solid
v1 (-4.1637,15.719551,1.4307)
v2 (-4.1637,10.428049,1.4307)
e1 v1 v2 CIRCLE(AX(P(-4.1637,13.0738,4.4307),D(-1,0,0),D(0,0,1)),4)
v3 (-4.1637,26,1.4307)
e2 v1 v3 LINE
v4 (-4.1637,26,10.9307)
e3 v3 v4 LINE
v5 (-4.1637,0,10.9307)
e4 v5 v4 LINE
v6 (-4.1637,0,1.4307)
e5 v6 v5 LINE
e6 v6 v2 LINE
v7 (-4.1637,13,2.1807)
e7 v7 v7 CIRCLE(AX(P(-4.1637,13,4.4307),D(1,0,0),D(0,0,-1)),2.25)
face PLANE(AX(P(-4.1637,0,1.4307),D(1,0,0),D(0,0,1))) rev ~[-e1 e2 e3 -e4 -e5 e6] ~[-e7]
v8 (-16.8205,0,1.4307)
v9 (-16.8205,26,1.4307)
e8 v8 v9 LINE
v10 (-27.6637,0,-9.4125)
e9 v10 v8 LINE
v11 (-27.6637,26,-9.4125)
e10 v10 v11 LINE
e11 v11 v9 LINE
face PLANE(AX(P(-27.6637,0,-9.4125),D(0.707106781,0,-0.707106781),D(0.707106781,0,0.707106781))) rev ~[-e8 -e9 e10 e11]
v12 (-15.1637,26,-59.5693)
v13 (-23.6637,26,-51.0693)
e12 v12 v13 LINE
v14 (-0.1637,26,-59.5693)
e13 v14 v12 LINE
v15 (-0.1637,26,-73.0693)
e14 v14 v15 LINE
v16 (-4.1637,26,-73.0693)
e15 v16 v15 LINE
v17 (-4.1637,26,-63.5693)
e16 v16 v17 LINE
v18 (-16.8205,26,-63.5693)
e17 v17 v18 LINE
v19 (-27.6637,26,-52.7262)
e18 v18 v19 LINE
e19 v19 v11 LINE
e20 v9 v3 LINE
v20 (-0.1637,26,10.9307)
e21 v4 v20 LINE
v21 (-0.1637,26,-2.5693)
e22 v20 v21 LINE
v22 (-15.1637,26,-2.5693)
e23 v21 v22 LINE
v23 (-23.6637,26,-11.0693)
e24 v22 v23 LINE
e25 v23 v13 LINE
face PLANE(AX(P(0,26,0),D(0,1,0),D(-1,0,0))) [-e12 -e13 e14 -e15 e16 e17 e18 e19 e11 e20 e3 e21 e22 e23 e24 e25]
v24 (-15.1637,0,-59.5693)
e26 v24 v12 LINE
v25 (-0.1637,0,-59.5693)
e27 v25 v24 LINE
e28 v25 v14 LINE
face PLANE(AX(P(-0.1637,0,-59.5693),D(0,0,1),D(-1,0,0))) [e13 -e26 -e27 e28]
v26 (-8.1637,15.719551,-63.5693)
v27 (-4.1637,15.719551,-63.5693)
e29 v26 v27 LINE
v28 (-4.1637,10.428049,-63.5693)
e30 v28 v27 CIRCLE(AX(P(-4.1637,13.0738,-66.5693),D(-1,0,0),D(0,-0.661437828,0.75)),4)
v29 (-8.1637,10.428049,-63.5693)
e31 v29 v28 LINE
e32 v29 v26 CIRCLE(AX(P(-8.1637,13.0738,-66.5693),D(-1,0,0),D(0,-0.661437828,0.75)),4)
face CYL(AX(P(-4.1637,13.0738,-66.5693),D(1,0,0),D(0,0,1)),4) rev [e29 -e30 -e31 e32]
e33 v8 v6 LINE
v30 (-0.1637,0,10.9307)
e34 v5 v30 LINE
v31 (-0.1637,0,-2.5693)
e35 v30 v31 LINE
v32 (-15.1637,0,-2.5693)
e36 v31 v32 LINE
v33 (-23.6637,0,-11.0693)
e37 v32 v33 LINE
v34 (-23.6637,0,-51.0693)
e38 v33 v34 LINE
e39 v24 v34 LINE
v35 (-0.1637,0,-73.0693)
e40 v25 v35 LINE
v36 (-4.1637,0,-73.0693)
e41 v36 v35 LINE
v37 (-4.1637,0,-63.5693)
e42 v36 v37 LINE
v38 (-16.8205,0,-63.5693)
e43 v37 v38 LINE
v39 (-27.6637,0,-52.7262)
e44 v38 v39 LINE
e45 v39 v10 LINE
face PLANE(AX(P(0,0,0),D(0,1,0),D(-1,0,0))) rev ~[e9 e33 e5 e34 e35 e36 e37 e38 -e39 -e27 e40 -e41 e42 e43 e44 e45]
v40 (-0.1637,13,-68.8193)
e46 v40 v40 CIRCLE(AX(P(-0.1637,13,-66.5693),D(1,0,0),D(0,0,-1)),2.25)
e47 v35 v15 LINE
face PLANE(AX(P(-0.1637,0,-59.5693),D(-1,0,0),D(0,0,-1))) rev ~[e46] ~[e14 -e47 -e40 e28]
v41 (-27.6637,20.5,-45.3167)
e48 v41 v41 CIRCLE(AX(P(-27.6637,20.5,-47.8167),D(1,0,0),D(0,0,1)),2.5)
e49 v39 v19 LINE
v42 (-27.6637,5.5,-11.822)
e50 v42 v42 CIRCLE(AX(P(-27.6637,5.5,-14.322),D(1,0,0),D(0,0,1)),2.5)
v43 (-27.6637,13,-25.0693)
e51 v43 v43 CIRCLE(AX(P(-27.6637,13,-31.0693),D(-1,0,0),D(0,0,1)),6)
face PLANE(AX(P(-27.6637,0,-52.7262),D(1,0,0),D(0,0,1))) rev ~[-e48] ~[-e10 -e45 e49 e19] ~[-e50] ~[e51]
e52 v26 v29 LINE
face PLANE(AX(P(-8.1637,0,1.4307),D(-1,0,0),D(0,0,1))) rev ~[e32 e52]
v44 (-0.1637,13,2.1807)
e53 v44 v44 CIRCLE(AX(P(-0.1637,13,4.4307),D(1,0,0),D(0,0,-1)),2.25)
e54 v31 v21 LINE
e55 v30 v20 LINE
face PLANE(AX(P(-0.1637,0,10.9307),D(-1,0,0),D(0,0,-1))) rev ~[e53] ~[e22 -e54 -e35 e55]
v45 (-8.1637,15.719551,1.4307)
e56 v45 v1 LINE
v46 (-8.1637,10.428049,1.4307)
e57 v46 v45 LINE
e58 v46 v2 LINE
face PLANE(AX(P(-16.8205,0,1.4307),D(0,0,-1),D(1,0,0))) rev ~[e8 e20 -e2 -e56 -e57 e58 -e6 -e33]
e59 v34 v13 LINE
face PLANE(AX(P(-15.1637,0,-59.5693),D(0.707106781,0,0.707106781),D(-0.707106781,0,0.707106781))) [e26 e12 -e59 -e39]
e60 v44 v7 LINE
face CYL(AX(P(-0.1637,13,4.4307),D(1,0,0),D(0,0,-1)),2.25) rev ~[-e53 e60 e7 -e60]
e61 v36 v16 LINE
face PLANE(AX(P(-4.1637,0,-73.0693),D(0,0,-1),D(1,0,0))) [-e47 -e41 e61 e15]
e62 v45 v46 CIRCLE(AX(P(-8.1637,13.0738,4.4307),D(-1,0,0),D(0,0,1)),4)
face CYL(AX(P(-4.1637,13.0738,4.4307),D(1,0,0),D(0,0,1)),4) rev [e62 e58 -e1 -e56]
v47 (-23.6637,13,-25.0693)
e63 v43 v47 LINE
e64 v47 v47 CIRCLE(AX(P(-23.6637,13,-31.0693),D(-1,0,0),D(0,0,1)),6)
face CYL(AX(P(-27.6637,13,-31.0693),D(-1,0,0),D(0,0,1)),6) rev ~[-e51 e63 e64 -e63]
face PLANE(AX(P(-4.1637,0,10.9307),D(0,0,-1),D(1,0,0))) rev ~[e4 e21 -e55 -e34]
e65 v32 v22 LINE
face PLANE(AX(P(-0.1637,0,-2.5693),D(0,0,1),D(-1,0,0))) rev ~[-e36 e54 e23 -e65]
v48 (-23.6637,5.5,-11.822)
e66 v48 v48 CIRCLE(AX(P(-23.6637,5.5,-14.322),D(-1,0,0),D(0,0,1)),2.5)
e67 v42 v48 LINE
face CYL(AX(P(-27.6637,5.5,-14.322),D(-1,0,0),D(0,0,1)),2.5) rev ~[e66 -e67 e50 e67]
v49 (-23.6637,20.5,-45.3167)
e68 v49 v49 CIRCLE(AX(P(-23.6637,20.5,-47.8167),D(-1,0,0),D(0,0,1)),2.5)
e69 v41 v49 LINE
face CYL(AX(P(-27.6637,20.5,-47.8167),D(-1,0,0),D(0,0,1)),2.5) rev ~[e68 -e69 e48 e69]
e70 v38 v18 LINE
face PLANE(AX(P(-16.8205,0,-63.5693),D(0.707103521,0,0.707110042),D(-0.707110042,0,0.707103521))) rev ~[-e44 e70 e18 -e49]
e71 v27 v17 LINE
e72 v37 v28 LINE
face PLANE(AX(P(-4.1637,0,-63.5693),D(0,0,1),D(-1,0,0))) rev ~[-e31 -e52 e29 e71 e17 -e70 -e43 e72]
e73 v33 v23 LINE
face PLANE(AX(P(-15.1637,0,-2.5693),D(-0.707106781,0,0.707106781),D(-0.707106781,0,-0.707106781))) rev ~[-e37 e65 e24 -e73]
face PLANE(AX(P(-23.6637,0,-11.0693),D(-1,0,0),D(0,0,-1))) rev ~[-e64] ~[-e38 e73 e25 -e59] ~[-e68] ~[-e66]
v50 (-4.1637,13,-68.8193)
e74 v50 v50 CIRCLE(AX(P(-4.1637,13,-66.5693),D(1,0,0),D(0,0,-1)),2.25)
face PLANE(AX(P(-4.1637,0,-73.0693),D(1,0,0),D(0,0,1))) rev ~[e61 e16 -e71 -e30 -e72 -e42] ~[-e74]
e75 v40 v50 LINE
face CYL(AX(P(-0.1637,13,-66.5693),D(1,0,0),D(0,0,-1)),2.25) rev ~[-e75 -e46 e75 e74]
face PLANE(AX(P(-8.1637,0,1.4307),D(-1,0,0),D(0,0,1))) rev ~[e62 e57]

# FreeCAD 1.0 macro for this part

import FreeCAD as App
import Part
import Sketcher

V = App.Vector


def add_polygon(sketch, points):
    """Adds a closed chain of lines whose ends are joined by coincident constraints."""
    first, n = sketch.GeometryCount, len(points)
    for a, b in zip(points, points[1:] + points[:1]):
        sketch.addGeometry(Part.LineSegment(App.Vector(*a, 0), App.Vector(*b, 0)), False)
    for i in range(n):
        sketch.addConstraint(Sketcher.Constraint("Coincident", first + i, 2, first + (i + 1) % n, 1))

doc = App.newDocument("Part")
params = doc.addObject("Spreadsheet::Sheet", "Params")
for row, (alias, value) in enumerate([
    ("sketch1_width", "4 mm"),
    ("sketch1_width2", "15 mm"),
    ("sketch1_height", "13.5 mm"),
    ("sketch1_height2", "40 mm"),
    ("pad1_length", "26 mm"),
    ("sketch2_diameter", "4.5 mm"),
    ("pocket1_length", "10 mm"),
    ("sketch3_diameter", "12 mm"),
    ("pocket2_length", "10 mm"),
    ("sketch4_diameter", "5 mm"),
    ("pocket3_length", "10 mm"),
    ("sketch5_diameter", "8 mm"),
    ("pocket4_length", "4 mm"),
], start=1):
    params.set(f"A{row}", alias)
    params.set(f"B{row}", "=" + value)
    params.setAlias(f"B{row}", alias)

body = doc.addObject("PartDesign::Body", "Body")

# Sketch on XZ plane
sketch1 = body.newObject("Sketcher::SketchObject", "Sketch")
sketch1.AttachmentSupport = (doc.getObject("XZ_Plane"), [""])
sketch1.MapMode = "FlatFace"
add_polygon(sketch1, [(-4.2, 10.9), (-0.2, 10.9), (-0.2, -2.6), (-15.2, -2.6), (-23.7, -11.1), (-23.7, -51.1), (-15.2, -59.6), (-0.2, -59.6), (-0.2, -73.1), (-4.2, -73.1), (-4.2, -63.6), (-16.8, -63.6), (-27.7, -52.7), (-27.7, -9.4), (-16.8, 1.4), (-4.2, 1.4)])  # lines 0-15
sketch1.addConstraint(Sketcher.Constraint("Horizontal", 0))
sketch1.addConstraint(Sketcher.Constraint("Vertical", 1))
sketch1.addConstraint(Sketcher.Constraint("Horizontal", 2))
sketch1.addConstraint(Sketcher.Constraint("Vertical", 4))
sketch1.addConstraint(Sketcher.Constraint("Horizontal", 6))
sketch1.addConstraint(Sketcher.Constraint("Vertical", 7))
sketch1.addConstraint(Sketcher.Constraint("Horizontal", 8))
sketch1.addConstraint(Sketcher.Constraint("Vertical", 9))
sketch1.addConstraint(Sketcher.Constraint("Horizontal", 10))
sketch1.addConstraint(Sketcher.Constraint("Vertical", 12))
sketch1.addConstraint(Sketcher.Constraint("Horizontal", 14))
sketch1.addConstraint(Sketcher.Constraint("Vertical", 15))
sketch1.addConstraint(Sketcher.Constraint("Perpendicular", 3, 5))
sketch1.addConstraint(Sketcher.Constraint("Parallel", 5, 11))
sketch1.addConstraint(Sketcher.Constraint("Perpendicular", 11, 13))
sketch1.addConstraint(Sketcher.Constraint("Vertical", 2, 2, 5, 2))
sketch1.addConstraint(Sketcher.Constraint("Vertical", 1, 2, 6, 2))
sketch1.addConstraint(Sketcher.Constraint("Vertical", 10, 2, 13, 2))
sketch1.addConstraint(Sketcher.Constraint("Vertical", 9, 2, 14, 2))
sketch1.addConstraint(Sketcher.Constraint("Equal", 1, 7))
sketch1.addConstraint(Sketcher.Constraint("Equal", 9, 15))
sketch1.addConstraint(Sketcher.Constraint("Equal", 3, 5))
sketch1.addConstraint(Sketcher.Constraint("DistanceX", 0, 1, 0, 2, 4.0))
sketch1.addConstraint(Sketcher.Constraint("DistanceX", 2, 2, 2, 1, 15.0))
sketch1.addConstraint(Sketcher.Constraint("DistanceY", 1, 2, 1, 1, 13.5))
sketch1.addConstraint(Sketcher.Constraint("DistanceY", 9, 2, 6, 2, 4.0))
sketch1.addConstraint(Sketcher.Constraint("DistanceX", 11, 2, 4, 2, 4.0))
sketch1.addConstraint(Sketcher.Constraint("DistanceX", 3, 2, 1, 2, 23.5))
sketch1.addConstraint(Sketcher.Constraint("DistanceY", 4, 2, 4, 1, 40.0))
sketch1.addConstraint(Sketcher.Constraint("DistanceX", 10, 2, 10, 1, 12.6568))
sketch1.addConstraint(Sketcher.Constraint("DistanceX", 0, 2, -1, 1, 0.1637))
sketch1.addConstraint(Sketcher.Constraint("DistanceY", -1, 1, 0, 2, 10.9307))
sketch1.setExpression("Constraints[38]", "Params.sketch1_width")
sketch1.setExpression("Constraints[39]", "Params.sketch1_width2")
sketch1.setExpression("Constraints[40]", "Params.sketch1_height")
sketch1.setExpression("Constraints[44]", "Params.sketch1_height2")
pad1 = body.newObject("PartDesign::Pad", "Pad")
pad1.Profile = sketch1
pad1.setExpression("Length", "Params.pad1_length")
pad1.Reversed = True

# Sketch on YZ plane
sketch2 = body.newObject("Sketcher::SketchObject", "Sketch001")
sketch2.AttachmentSupport = (doc.getObject("YZ_Plane"), [""])
sketch2.MapMode = "FlatFace"
sketch2.AttachmentOffset = App.Placement(V(0, 0, -0.1637), App.Rotation())
sketch2.addGeometry(Part.Circle(V(13, 4.4, 0), V(0, 0, 1), 2.2), False)
sketch2.addGeometry(Part.Circle(V(13, -66.6, 0), V(0, 0, 1), 2.2), False)
sketch2.addConstraint(Sketcher.Constraint("Equal", 0, 1))
sketch2.addConstraint(Sketcher.Constraint("Vertical", 0, 3, 1, 3))
sketch2.addConstraint(Sketcher.Constraint("Diameter", 0, 4.5))
sketch2.addConstraint(Sketcher.Constraint("DistanceX", -1, 1, 0, 3, 13.0))
sketch2.addConstraint(Sketcher.Constraint("DistanceY", 1, 3, 0, 3, 71.0))
sketch2.addConstraint(Sketcher.Constraint("DistanceY", -1, 1, 0, 3, 4.4307))
sketch2.setExpression("Constraints[2]", "Params.sketch2_diameter")
pocket1 = body.newObject("PartDesign::Pocket", "Pocket")
pocket1.Profile = sketch2
pocket1.setExpression("Length", "Params.pocket1_length")

# Sketch on YZ plane
sketch3 = body.newObject("Sketcher::SketchObject", "Sketch002")
sketch3.AttachmentSupport = (doc.getObject("YZ_Plane"), [""])
sketch3.MapMode = "FlatFace"
sketch3.AttachmentOffset = App.Placement(V(0, 0, -27.6637), App.Rotation())
sketch3.addGeometry(Part.Circle(V(13, -31, 0), V(0, 0, 1), 6), False)
sketch3.addConstraint(Sketcher.Constraint("Diameter", 0, 12.0))
sketch3.addConstraint(Sketcher.Constraint("DistanceX", -1, 1, 0, 3, 13.0))
sketch3.addConstraint(Sketcher.Constraint("DistanceY", 0, 3, -1, 1, 31.0693))
sketch3.setExpression("Constraints[0]", "Params.sketch3_diameter")
pocket2 = body.newObject("PartDesign::Pocket", "Pocket001")
pocket2.Profile = sketch3
pocket2.setExpression("Length", "Params.pocket2_length")
pocket2.Reversed = True

# Sketch on YZ plane
sketch4 = body.newObject("Sketcher::SketchObject", "Sketch003")
sketch4.AttachmentSupport = (doc.getObject("YZ_Plane"), [""])
sketch4.MapMode = "FlatFace"
sketch4.AttachmentOffset = App.Placement(V(0, 0, -27.6637), App.Rotation())
sketch4.addGeometry(Part.Circle(V(20.5, -47.8, 0), V(0, 0, 1), 2.5), False)
sketch4.addGeometry(Part.Circle(V(5.5, -14.3, 0), V(0, 0, 1), 2.5), False)
sketch4.addConstraint(Sketcher.Constraint("Equal", 0, 1))
sketch4.addConstraint(Sketcher.Constraint("Diameter", 0, 5.0))
sketch4.addConstraint(Sketcher.Constraint("DistanceX", -1, 1, 1, 3, 5.5))
sketch4.addConstraint(Sketcher.Constraint("DistanceX", 1, 3, 0, 3, 15.0))
sketch4.addConstraint(Sketcher.Constraint("DistanceY", 1, 3, -1, 1, 14.322))
sketch4.addConstraint(Sketcher.Constraint("DistanceY", 0, 3, -1, 1, 47.8167))
sketch4.setExpression("Constraints[1]", "Params.sketch4_diameter")
pocket3 = body.newObject("PartDesign::Pocket", "Pocket002")
pocket3.Profile = sketch4
pocket3.setExpression("Length", "Params.pocket3_length")
pocket3.Reversed = True

# Sketch on YZ plane
sketch5 = body.newObject("Sketcher::SketchObject", "Sketch004")
sketch5.AttachmentSupport = (doc.getObject("YZ_Plane"), [""])
sketch5.MapMode = "FlatFace"
sketch5.AttachmentOffset = App.Placement(V(0, 0, -4.1637), App.Rotation())
sketch5.addGeometry(Part.Circle(V(13.1, 4.4, 0), V(0, 0, 1), 4), False)
sketch5.addGeometry(Part.Circle(V(13.1, -66.6, 0), V(0, 0, 1), 4), False)
sketch5.addConstraint(Sketcher.Constraint("Equal", 0, 1))
sketch5.addConstraint(Sketcher.Constraint("Vertical", 0, 3, 1, 3))
sketch5.addConstraint(Sketcher.Constraint("Diameter", 0, 8.0))
sketch5.addConstraint(Sketcher.Constraint("DistanceY", 1, 3, 0, 3, 71.0))
sketch5.addConstraint(Sketcher.Constraint("DistanceX", -1, 1, 0, 3, 13.0738))
sketch5.addConstraint(Sketcher.Constraint("DistanceY", -1, 1, 0, 3, 4.4307))
sketch5.setExpression("Constraints[2]", "Params.sketch5_diameter")
pocket4 = body.newObject("PartDesign::Pocket", "Pocket003")
pocket4.Profile = sketch5
pocket4.setExpression("Length", "Params.pocket4_length")

doc.recompute()
